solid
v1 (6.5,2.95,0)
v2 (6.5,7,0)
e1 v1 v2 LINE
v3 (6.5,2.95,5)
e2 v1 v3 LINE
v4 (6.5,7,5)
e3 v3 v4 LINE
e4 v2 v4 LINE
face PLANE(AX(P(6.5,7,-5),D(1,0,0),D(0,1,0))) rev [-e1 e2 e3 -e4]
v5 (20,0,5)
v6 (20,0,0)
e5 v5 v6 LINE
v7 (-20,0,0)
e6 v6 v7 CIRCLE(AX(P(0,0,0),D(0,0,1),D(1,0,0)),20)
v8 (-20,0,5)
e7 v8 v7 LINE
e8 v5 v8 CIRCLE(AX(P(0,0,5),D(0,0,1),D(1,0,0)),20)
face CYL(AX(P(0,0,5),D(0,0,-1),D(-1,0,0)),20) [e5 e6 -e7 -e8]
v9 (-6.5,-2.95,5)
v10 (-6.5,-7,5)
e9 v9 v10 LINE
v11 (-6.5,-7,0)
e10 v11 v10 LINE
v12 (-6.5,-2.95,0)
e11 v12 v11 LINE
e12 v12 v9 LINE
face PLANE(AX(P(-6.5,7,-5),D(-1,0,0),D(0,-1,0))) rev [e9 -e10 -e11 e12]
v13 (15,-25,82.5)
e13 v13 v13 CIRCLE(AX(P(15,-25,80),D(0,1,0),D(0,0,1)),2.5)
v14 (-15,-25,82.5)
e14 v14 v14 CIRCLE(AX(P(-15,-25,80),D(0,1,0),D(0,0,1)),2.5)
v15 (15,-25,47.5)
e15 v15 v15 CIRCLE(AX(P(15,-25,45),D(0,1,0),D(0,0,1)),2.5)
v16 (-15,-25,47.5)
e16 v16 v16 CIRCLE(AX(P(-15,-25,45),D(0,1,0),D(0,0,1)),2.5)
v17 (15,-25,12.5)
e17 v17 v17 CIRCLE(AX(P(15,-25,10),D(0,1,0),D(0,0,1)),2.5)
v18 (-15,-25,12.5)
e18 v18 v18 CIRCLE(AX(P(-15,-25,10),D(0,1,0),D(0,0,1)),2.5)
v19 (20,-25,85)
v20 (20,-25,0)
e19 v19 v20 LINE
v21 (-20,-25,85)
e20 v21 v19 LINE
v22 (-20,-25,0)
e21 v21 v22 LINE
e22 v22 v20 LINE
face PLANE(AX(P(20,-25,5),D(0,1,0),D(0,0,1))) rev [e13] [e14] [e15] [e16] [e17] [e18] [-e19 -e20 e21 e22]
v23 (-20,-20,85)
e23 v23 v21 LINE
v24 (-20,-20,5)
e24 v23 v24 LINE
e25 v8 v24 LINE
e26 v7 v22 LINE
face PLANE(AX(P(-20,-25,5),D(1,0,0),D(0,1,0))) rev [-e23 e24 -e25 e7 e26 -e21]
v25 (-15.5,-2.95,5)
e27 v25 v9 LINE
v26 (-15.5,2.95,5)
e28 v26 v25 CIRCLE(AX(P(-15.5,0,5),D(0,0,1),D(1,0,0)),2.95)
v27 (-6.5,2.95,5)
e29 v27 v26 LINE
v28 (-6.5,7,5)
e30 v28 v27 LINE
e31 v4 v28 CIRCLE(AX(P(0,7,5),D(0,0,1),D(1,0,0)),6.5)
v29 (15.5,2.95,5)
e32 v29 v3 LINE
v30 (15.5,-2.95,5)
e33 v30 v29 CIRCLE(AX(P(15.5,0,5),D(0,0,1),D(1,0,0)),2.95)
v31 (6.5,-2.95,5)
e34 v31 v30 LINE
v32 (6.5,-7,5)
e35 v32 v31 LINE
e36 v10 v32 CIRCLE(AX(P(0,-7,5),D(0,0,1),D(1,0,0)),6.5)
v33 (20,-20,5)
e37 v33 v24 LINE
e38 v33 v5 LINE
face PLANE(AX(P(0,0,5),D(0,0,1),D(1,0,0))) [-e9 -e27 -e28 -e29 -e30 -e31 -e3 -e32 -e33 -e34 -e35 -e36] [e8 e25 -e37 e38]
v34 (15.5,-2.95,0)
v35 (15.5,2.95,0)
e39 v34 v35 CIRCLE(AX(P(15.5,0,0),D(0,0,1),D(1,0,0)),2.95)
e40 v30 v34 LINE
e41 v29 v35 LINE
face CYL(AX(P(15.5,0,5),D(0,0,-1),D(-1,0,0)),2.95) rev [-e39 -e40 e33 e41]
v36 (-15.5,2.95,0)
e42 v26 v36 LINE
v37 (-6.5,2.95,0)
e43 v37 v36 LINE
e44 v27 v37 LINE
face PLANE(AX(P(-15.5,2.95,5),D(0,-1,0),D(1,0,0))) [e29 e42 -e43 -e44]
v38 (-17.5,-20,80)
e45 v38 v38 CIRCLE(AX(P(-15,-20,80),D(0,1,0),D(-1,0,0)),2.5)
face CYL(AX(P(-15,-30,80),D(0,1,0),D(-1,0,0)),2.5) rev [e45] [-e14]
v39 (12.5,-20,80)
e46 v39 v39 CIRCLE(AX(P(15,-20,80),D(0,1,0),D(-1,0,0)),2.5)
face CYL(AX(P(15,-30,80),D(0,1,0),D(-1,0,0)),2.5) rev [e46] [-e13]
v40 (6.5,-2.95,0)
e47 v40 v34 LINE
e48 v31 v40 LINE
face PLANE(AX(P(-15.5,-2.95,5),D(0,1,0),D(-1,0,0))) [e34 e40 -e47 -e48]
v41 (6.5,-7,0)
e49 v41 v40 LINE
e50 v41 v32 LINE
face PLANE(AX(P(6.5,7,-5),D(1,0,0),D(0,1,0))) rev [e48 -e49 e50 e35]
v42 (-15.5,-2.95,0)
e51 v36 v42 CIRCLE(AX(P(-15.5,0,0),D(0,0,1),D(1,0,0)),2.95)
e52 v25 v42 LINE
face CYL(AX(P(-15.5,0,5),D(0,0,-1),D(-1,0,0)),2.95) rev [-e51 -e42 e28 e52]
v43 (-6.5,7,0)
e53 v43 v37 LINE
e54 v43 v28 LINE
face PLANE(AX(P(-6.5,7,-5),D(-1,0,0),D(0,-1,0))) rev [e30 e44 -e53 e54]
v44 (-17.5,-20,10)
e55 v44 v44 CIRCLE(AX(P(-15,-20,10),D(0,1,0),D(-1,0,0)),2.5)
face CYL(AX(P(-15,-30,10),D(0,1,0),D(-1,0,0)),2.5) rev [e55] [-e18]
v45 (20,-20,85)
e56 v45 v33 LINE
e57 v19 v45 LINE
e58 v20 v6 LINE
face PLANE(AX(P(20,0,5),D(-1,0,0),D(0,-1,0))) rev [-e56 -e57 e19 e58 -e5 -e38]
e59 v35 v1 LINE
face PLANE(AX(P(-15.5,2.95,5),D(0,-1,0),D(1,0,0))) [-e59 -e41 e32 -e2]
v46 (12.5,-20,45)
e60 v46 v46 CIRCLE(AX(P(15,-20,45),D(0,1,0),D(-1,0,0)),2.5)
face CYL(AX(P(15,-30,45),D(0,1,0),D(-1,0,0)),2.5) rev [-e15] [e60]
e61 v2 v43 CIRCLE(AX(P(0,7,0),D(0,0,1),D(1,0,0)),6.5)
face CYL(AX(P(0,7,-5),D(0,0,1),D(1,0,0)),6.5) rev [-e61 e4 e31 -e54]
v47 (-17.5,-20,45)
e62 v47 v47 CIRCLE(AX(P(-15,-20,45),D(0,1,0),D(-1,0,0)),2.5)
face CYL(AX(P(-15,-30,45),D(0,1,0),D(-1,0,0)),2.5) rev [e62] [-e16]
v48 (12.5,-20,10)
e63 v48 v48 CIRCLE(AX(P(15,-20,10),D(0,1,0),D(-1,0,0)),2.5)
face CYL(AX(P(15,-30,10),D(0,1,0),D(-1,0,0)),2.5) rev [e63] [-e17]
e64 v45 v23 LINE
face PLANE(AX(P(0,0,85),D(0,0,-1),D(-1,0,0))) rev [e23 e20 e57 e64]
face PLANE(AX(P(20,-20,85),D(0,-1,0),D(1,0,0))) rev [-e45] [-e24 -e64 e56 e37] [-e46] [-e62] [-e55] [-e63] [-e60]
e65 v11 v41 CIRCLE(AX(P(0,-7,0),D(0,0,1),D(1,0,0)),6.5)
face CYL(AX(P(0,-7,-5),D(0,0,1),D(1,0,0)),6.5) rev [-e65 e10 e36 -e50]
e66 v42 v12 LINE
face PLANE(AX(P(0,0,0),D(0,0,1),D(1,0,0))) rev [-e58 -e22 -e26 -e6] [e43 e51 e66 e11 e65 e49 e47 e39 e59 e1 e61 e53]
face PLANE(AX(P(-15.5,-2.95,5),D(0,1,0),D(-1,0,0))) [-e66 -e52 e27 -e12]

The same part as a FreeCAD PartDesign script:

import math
import FreeCAD as App
import Part
import Sketcher

doc = App.newDocument("Part")
params = doc.addObject("Spreadsheet::Sheet", "Params")
for row, (alias, value) in enumerate([
    ("sketch1_radius", "20 mm"),
    ("sketch1_width", "31 mm"),
    ("sketch1_height", "25 mm"),
    ("sketch1_radius2", "2.95 mm"),
    ("pad1_length", "5 mm"),
    ("sketch2_width", "40 mm"),
    ("sketch2_height", "5 mm"),
    ("pad2_length", "80 mm"),
    ("sketch3_diameter", "5 mm"),
    ("pocket1_length", "10 mm"),
    ("sketch4_radius", "6.5 mm"),
    ("sketch4_height", "14 mm"),
    ("pocket2_length", "10 mm"),
], start=1):
    params.set(f"A{row}", alias)
    params.set(f"B{row}", "=" + value)
    params.setAlias(f"B{row}", alias)

body = doc.addObject("PartDesign::Body", "Body")

# Sketch on XY plane
sketch1 = body.newObject("Sketcher::SketchObject", "Sketch")
sketch1.AttachmentSupport = (doc.getObject("XY_Plane"), [""])
sketch1.MapMode = "FlatFace"
sketch1.addGeometry([
    Part.LineSegment(App.Vector(20, -25, 0), App.Vector(20, 0, 0)),  # 0
    Part.ArcOfCircle(Part.Circle(App.Vector(0, 0, 0), App.Vector(0, 0, 1), 20), math.radians(0), math.radians(180)),  # 1
    Part.LineSegment(App.Vector(-20, 0, 0), App.Vector(-20, -25, 0)),  # 2
    Part.LineSegment(App.Vector(-20, -25, 0), App.Vector(20, -25, 0)),  # 3
    Part.LineSegment(App.Vector(-15.5, 3, 0), App.Vector(15.5, 3, 0)),  # 4
    Part.ArcOfCircle(Part.Circle(App.Vector(15.5, 0, 0), App.Vector(0, 0, 1), 3), math.radians(-90), math.radians(90)),  # 5
    Part.LineSegment(App.Vector(15.5, -3, 0), App.Vector(-15.5, -3, 0)),  # 6
    Part.ArcOfCircle(Part.Circle(App.Vector(-15.5, 0, 0), App.Vector(0, 0, 1), 3), math.radians(90), math.radians(270)),  # 7
], False)
sketch1.addConstraint([
    Sketcher.Constraint("Tangent", 0, 2, 1, 1),
    Sketcher.Constraint("Tangent", 1, 2, 2, 1),
    Sketcher.Constraint("Coincident", 2, 2, 3, 1),
    Sketcher.Constraint("Coincident", 3, 2, 0, 1),
    Sketcher.Constraint("Tangent", 4, 2, 5, 2),
    Sketcher.Constraint("Tangent", 5, 1, 6, 1),
    Sketcher.Constraint("Tangent", 6, 2, 7, 2),
    Sketcher.Constraint("Tangent", 7, 1, 4, 1),
    Sketcher.Constraint("Vertical", 0),
    Sketcher.Constraint("Vertical", 2),
    Sketcher.Constraint("Horizontal", 3),
    Sketcher.Constraint("Horizontal", 4),
    Sketcher.Constraint("Horizontal", 6),
    Sketcher.Constraint("Coincident", 1, 3, -1, 1),
    Sketcher.Constraint("Symmetric", 5, 3, 7, 3, -1, 1),
    Sketcher.Constraint("Radius", 1, 20.0),
    Sketcher.Constraint("DistanceX", 4, 1, 4, 2, 31.0),
    Sketcher.Constraint("DistanceY", 0, 1, 0, 2, 25.0),
    Sketcher.Constraint("Radius", 5, 2.95),
])
sketch1.setExpression("Constraints[15]", "Params.sketch1_radius")
sketch1.setExpression("Constraints[16]", "Params.sketch1_width")
sketch1.setExpression("Constraints[17]", "Params.sketch1_height")
sketch1.setExpression("Constraints[18]", "Params.sketch1_radius2")
pad1 = body.newObject("PartDesign::Pad", "Pad")
pad1.Profile = sketch1
pad1.setExpression("Length", "Params.pad1_length")

# Sketch on XY plane
sketch2 = body.newObject("Sketcher::SketchObject", "Sketch001")
sketch2.AttachmentSupport = (doc.getObject("XY_Plane"), [""])
sketch2.MapMode = "FlatFace"
sketch2.AttachmentOffset = App.Placement(App.Vector(0, 0, 5), App.Rotation())
sketch2.addGeometry([
    Part.LineSegment(App.Vector(-20, -20, 0), App.Vector(-20, -25, 0)),
    Part.LineSegment(App.Vector(-20, -25, 0), App.Vector(20, -25, 0)),
    Part.LineSegment(App.Vector(20, -25, 0), App.Vector(20, -20, 0)),
    Part.LineSegment(App.Vector(20, -20, 0), App.Vector(-20, -20, 0)),
], False)
sketch2.addConstraint([
    Sketcher.Constraint("Coincident", 0, 2, 1, 1),
    Sketcher.Constraint("Coincident", 1, 2, 2, 1),
    Sketcher.Constraint("Coincident", 2, 2, 3, 1),
    Sketcher.Constraint("Coincident", 3, 2, 0, 1),
    Sketcher.Constraint("Vertical", 0),
    Sketcher.Constraint("Horizontal", 1),
    Sketcher.Constraint("Vertical", 2),
    Sketcher.Constraint("Horizontal", 3),
    Sketcher.Constraint("DistanceX", 1, 1, 1, 2, 40.0),
    Sketcher.Constraint("DistanceY", 0, 2, 0, 1, 5.0),
    Sketcher.Constraint("DistanceX", 0, 2, -1, 1, 20.0),
    Sketcher.Constraint("DistanceY", 0, 2, -1, 1, 25.0),
])
sketch2.setExpression("Constraints[8]", "Params.sketch2_width")
sketch2.setExpression("Constraints[9]", "Params.sketch2_height")
pad2 = body.newObject("PartDesign::Pad", "Pad001")
pad2.Profile = sketch2
pad2.setExpression("Length", "Params.pad2_length")

# Sketch on XZ plane
sketch3 = body.newObject("Sketcher::SketchObject", "Sketch002")
sketch3.AttachmentSupport = (doc.getObject("XZ_Plane"), [""])
sketch3.MapMode = "FlatFace"
sketch3.AttachmentOffset = App.Placement(App.Vector(0, 0, 20), App.Rotation())
sketch3.addGeometry([
    Part.Circle(App.Vector(-15, 10, 0), App.Vector(0, 0, 1), 2.5),  # 0
    Part.Circle(App.Vector(15, 10, 0), App.Vector(0, 0, 1), 2.5),  # 1
    Part.Circle(App.Vector(15, 80, 0), App.Vector(0, 0, 1), 2.5),  # 2
    Part.Circle(App.Vector(-15, 80, 0), App.Vector(0, 0, 1), 2.5),  # 3
    Part.Circle(App.Vector(-15, 45, 0), App.Vector(0, 0, 1), 2.5),  # 4
    Part.Circle(App.Vector(15, 45, 0), App.Vector(0, 0, 1), 2.5),  # 5
], False)
sketch3.addConstraint([
    Sketcher.Constraint("Equal", 0, 1),
    Sketcher.Constraint("Equal", 1, 2),
    Sketcher.Constraint("Equal", 2, 3),
    Sketcher.Constraint("Equal", 3, 4),
    Sketcher.Constraint("Equal", 4, 5),
    Sketcher.Constraint("Symmetric", 0, 3, 1, 3, -2),
    Sketcher.Constraint("Symmetric", 2, 3, 3, 3, -2),
    Sketcher.Constraint("Symmetric", 4, 3, 5, 3, -2),
    Sketcher.Constraint("Vertical", 1, 3, 2, 3),
    Sketcher.Constraint("Vertical", 3, 3, 4, 3),
    Sketcher.Constraint("Diameter", 0, 5.0),
    Sketcher.Constraint("DistanceX", 0, 3, -1, 1, 15.0),
    Sketcher.Constraint("DistanceY", -1, 1, 0, 3, 10.0),
    Sketcher.Constraint("DistanceY", -1, 1, 2, 3, 80.0),
    Sketcher.Constraint("DistanceY", -1, 1, 4, 3, 45.0),
])
sketch3.setExpression("Constraints[10]", "Params.sketch3_diameter")
pocket1 = body.newObject("PartDesign::Pocket", "Pocket")
pocket1.Profile = sketch3
pocket1.setExpression("Length", "Params.pocket1_length")
pocket1.Reversed = True

# Sketch on XY plane
sketch4 = body.newObject("Sketcher::SketchObject", "Sketch003")
sketch4.AttachmentSupport = (doc.getObject("XY_Plane"), [""])
sketch4.MapMode = "FlatFace"
sketch4.AttachmentOffset = App.Placement(App.Vector(0, 0, 5), App.Rotation())
sketch4.addGeometry([
    Part.LineSegment(App.Vector(6, -7, 0), App.Vector(6, 7, 0)),
    Part.ArcOfCircle(Part.Circle(App.Vector(0, 7, 0), App.Vector(0, 0, 1), 6), math.radians(0), math.radians(180)),
    Part.LineSegment(App.Vector(-6, 7, 0), App.Vector(-6, -7, 0)),
    Part.ArcOfCircle(Part.Circle(App.Vector(0, -7, 0), App.Vector(0, 0, 1), 6), math.radians(180), math.radians(360)),
], False)
sketch4.addConstraint([
    Sketcher.Constraint("Tangent", 0, 2, 1, 1),
    Sketcher.Constraint("Tangent", 1, 2, 2, 1),
    Sketcher.Constraint("Tangent", 2, 2, 3, 1),
    Sketcher.Constraint("Tangent", 3, 2, 0, 1),
    Sketcher.Constraint("Vertical", 0),
    Sketcher.Constraint("Vertical", 2),
    Sketcher.Constraint("Symmetric", 1, 3, 3, 3, -1, 1),
    Sketcher.Constraint("Radius", 1, 6.5),
    Sketcher.Constraint("DistanceY", 0, 1, 0, 2, 14.0),
])
sketch4.setExpression("Constraints[7]", "Params.sketch4_radius")
sketch4.setExpression("Constraints[8]", "Params.sketch4_height")
pocket2 = body.newObject("PartDesign::Pocket", "Pocket001")
pocket2.Profile = sketch4
pocket2.setExpression("Length", "Params.pocket2_length")

doc.recompute()
